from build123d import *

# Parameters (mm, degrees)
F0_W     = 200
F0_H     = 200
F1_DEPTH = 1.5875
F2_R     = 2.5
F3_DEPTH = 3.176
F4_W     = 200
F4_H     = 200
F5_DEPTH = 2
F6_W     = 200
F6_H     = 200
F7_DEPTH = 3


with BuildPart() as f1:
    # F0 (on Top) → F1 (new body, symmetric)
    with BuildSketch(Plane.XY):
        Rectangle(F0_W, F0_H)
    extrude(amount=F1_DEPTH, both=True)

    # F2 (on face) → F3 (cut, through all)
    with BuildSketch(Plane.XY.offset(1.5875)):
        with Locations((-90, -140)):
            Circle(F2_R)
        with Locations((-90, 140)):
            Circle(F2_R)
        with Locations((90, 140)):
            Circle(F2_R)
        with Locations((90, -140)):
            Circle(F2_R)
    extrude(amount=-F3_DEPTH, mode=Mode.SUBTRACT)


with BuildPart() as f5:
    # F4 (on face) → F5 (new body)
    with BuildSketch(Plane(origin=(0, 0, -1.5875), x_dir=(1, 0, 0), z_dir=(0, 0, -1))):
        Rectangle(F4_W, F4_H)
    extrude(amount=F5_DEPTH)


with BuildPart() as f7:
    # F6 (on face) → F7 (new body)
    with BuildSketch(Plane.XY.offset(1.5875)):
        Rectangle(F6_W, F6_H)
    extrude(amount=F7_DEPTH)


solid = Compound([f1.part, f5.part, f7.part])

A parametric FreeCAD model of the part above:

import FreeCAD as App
import Part
import Sketcher
from FreeCAD import Vector


def add_polygon(sketch, points):
    """Adds a closed chain of lines whose ends are joined by coincident constraints."""
    first, n = sketch.GeometryCount, len(points)
    for a, b in zip(points, points[1:] + points[:1]):
        sketch.addGeometry(Part.LineSegment(App.Vector(*a, 0), App.Vector(*b, 0)), False)
    for i in range(n):
        sketch.addConstraint(Sketcher.Constraint("Coincident", first + i, 2, first + (i + 1) % n, 1))

doc = App.newDocument("Part")
body = doc.addObject("PartDesign::Body", "Body")

# Sketch on XY plane
sketch1 = body.newObject("Sketcher::SketchObject", "Sketch")
sketch1.AttachmentSupport = (doc.getObject("XY_Plane"), [""])
sketch1.MapMode = "FlatFace"
add_polygon(sketch1, [(-100, 100), (-100, -100), (100, -100), (100, 100)])  # lines 0-3
sketch1.addConstraint(Sketcher.Constraint("Vertical", 0))
sketch1.addConstraint(Sketcher.Constraint("Horizontal", 1))
sketch1.addConstraint(Sketcher.Constraint("Vertical", 2))
sketch1.addConstraint(Sketcher.Constraint("Horizontal", 3))
sketch1.addConstraint(Sketcher.Constraint("Symmetric", 0, 2, 2, 2, -1, 1))
sketch1.addConstraint(Sketcher.Constraint("Equal", 3, 0))
sketch1.addConstraint(Sketcher.Constraint("DistanceX", 1, 1, 1, 2, 200.0))
pad1 = body.newObject("PartDesign::Pad", "Pad")
pad1.Profile = sketch1
pad1.Length = 3.175
pad1.Midplane = True

# Sketch on XY plane
sketch2 = body.newObject("Sketcher::SketchObject", "Sketch001")
sketch2.AttachmentSupport = (doc.getObject("XY_Plane"), [""])
sketch2.MapMode = "FlatFace"
sketch2.AttachmentOffset = App.Placement(Vector(0, 0, 1.5875), App.Rotation())
sketch2.addGeometry(Part.Circle(Vector(-90, -140, 0), Vector(0, 0, 1), 2.5), False)
sketch2.addGeometry(Part.Circle(Vector(-90, 140, 0), Vector(0, 0, 1), 2.5), False)
sketch2.addGeometry(Part.Circle(Vector(90, 140, 0), Vector(0, 0, 1), 2.5), False)
sketch2.addGeometry(Part.Circle(Vector(90, -140, 0), Vector(0, 0, 1), 2.5), False)
sketch2.addConstraint(Sketcher.Constraint("Equal", 0, 1))
sketch2.addConstraint(Sketcher.Constraint("Equal", 1, 2))
sketch2.addConstraint(Sketcher.Constraint("Equal", 2, 3))
sketch2.addConstraint(Sketcher.Constraint("Symmetric", 0, 3, 2, 3, -1, 1))
sketch2.addConstraint(Sketcher.Constraint("Symmetric", 1, 3, 3, 3, -1, 1))
sketch2.addConstraint(Sketcher.Constraint("Symmetric", 1, 3, 2, 3, -2))
sketch2.addConstraint(Sketcher.Constraint("Diameter", 0, 5.0))
sketch2.addConstraint(Sketcher.Constraint("DistanceX", 0, 3, -1, 1, 90.0))
sketch2.addConstraint(Sketcher.Constraint("DistanceY", 0, 3, -1, 1, 140.0))
pocket1 = body.newObject("PartDesign::Pocket", "Pocket")
pocket1.Profile = sketch2
pocket1.Type = "ThroughAll"
body2 = doc.addObject("PartDesign::Body", "Body001")

# Sketch on XY plane
sketch3 = body2.newObject("Sketcher::SketchObject", "Sketch002")
sketch3.AttachmentSupport = (doc.getObject("XY_Plane001"), [""])
sketch3.MapMode = "FlatFace"
sketch3.AttachmentOffset = App.Placement(Vector(0, 0, -1.5875), App.Rotation())
add_polygon(sketch3, [(-100, -100), (-100, 100), (100, 100), (100, -100)])  # lines 0-3
sketch3.addConstraint(Sketcher.Constraint("Vertical", 0))
sketch3.addConstraint(Sketcher.Constraint("Horizontal", 1))
sketch3.addConstraint(Sketcher.Constraint("Vertical", 2))
sketch3.addConstraint(Sketcher.Constraint("Horizontal", 3))
sketch3.addConstraint(Sketcher.Constraint("Symmetric", 0, 2, 2, 2, -1, 1))
sketch3.addConstraint(Sketcher.Constraint("Equal", 3, 0))
sketch3.addConstraint(Sketcher.Constraint("DistanceX", 1, 1, 1, 2, 200.0))
pad2 = body2.newObject("PartDesign::Pad", "Pad001")
pad2.Profile = sketch3
pad2.Length = 2
pad2.Reversed = True
body3 = doc.addObject("PartDesign::Body", "Body002")

# Sketch on XY plane
sketch4 = body3.newObject("Sketcher::SketchObject", "Sketch003")
sketch4.AttachmentSupport = (doc.getObject("XY_Plane002"), [""])
sketch4.MapMode = "FlatFace"
sketch4.AttachmentOffset = App.Placement(Vector(0, 0, 1.5875), App.Rotation())
add_polygon(sketch4, [(-100, 100), (-100, -100), (100, -100), (100, 100)])  # lines 0-3
sketch4.addConstraint(Sketcher.Constraint("Vertical", 0))
sketch4.addConstraint(Sketcher.Constraint("Horizontal", 1))
sketch4.addConstraint(Sketcher.Constraint("Vertical", 2))
sketch4.addConstraint(Sketcher.Constraint("Horizontal", 3))
sketch4.addConstraint(Sketcher.Constraint("Symmetric", 0, 2, 2, 2, -1, 1))
sketch4.addConstraint(Sketcher.Constraint("Equal", 3, 0))
sketch4.addConstraint(Sketcher.Constraint("DistanceX", 1, 1, 1, 2, 200.0))
pad3 = body3.newObject("PartDesign::Pad", "Pad002")
pad3.Profile = sketch4
pad3.Length = 3

doc.recompute()
